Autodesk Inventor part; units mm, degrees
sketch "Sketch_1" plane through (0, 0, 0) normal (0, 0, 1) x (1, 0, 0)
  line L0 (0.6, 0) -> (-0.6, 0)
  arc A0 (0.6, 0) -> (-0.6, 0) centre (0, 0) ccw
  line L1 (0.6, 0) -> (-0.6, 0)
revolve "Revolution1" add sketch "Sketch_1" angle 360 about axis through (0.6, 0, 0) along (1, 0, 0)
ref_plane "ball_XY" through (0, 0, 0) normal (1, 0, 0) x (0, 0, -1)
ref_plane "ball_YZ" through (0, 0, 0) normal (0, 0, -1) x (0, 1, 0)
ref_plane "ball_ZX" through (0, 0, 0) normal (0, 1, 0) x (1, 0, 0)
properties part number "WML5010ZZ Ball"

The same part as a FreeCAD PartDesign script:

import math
import FreeCAD as App
import Part
import Sketcher

V = App.Vector
Q = App.Units.Quantity

doc = App.newDocument("Part")
body = doc.addObject("PartDesign::Body", "Body")

# Sketch on XY plane
sketch1 = body.newObject("Sketcher::SketchObject", "Sketch")
sketch1.AttachmentSupport = (doc.getObject("XY_Plane"), [""])
sketch1.MapMode = "FlatFace"
sketch1.addGeometry([
    Part.LineSegment(V(-0.6, 0, 0), V(0.6, 0, 0)),
    Part.ArcOfCircle(Part.Circle(V(0, 0, 0), V(0, 0, 1), 0.6), math.radians(0), math.radians(180)),
], False)
sketch1.addConstraint([
    Sketcher.Constraint("Coincident", 0, 1, 1, 2),
    Sketcher.Constraint("Coincident", 1, 1, 0, 2),
    Sketcher.Constraint("Horizontal", 0),
    Sketcher.Constraint("Coincident", 1, 3, -1, 1),
    Sketcher.Constraint("PointOnObject", 0, 1, -1),
    Sketcher.Constraint("Radius", 1, Q("0.6 mm")),
])
revolution = body.newObject("PartDesign::Revolution", "Revolution")
revolution.Profile = sketch1
revolution.ReferenceAxis = (sketch1, ["H_Axis"])
revolution.Angle = 360

doc.recompute()
